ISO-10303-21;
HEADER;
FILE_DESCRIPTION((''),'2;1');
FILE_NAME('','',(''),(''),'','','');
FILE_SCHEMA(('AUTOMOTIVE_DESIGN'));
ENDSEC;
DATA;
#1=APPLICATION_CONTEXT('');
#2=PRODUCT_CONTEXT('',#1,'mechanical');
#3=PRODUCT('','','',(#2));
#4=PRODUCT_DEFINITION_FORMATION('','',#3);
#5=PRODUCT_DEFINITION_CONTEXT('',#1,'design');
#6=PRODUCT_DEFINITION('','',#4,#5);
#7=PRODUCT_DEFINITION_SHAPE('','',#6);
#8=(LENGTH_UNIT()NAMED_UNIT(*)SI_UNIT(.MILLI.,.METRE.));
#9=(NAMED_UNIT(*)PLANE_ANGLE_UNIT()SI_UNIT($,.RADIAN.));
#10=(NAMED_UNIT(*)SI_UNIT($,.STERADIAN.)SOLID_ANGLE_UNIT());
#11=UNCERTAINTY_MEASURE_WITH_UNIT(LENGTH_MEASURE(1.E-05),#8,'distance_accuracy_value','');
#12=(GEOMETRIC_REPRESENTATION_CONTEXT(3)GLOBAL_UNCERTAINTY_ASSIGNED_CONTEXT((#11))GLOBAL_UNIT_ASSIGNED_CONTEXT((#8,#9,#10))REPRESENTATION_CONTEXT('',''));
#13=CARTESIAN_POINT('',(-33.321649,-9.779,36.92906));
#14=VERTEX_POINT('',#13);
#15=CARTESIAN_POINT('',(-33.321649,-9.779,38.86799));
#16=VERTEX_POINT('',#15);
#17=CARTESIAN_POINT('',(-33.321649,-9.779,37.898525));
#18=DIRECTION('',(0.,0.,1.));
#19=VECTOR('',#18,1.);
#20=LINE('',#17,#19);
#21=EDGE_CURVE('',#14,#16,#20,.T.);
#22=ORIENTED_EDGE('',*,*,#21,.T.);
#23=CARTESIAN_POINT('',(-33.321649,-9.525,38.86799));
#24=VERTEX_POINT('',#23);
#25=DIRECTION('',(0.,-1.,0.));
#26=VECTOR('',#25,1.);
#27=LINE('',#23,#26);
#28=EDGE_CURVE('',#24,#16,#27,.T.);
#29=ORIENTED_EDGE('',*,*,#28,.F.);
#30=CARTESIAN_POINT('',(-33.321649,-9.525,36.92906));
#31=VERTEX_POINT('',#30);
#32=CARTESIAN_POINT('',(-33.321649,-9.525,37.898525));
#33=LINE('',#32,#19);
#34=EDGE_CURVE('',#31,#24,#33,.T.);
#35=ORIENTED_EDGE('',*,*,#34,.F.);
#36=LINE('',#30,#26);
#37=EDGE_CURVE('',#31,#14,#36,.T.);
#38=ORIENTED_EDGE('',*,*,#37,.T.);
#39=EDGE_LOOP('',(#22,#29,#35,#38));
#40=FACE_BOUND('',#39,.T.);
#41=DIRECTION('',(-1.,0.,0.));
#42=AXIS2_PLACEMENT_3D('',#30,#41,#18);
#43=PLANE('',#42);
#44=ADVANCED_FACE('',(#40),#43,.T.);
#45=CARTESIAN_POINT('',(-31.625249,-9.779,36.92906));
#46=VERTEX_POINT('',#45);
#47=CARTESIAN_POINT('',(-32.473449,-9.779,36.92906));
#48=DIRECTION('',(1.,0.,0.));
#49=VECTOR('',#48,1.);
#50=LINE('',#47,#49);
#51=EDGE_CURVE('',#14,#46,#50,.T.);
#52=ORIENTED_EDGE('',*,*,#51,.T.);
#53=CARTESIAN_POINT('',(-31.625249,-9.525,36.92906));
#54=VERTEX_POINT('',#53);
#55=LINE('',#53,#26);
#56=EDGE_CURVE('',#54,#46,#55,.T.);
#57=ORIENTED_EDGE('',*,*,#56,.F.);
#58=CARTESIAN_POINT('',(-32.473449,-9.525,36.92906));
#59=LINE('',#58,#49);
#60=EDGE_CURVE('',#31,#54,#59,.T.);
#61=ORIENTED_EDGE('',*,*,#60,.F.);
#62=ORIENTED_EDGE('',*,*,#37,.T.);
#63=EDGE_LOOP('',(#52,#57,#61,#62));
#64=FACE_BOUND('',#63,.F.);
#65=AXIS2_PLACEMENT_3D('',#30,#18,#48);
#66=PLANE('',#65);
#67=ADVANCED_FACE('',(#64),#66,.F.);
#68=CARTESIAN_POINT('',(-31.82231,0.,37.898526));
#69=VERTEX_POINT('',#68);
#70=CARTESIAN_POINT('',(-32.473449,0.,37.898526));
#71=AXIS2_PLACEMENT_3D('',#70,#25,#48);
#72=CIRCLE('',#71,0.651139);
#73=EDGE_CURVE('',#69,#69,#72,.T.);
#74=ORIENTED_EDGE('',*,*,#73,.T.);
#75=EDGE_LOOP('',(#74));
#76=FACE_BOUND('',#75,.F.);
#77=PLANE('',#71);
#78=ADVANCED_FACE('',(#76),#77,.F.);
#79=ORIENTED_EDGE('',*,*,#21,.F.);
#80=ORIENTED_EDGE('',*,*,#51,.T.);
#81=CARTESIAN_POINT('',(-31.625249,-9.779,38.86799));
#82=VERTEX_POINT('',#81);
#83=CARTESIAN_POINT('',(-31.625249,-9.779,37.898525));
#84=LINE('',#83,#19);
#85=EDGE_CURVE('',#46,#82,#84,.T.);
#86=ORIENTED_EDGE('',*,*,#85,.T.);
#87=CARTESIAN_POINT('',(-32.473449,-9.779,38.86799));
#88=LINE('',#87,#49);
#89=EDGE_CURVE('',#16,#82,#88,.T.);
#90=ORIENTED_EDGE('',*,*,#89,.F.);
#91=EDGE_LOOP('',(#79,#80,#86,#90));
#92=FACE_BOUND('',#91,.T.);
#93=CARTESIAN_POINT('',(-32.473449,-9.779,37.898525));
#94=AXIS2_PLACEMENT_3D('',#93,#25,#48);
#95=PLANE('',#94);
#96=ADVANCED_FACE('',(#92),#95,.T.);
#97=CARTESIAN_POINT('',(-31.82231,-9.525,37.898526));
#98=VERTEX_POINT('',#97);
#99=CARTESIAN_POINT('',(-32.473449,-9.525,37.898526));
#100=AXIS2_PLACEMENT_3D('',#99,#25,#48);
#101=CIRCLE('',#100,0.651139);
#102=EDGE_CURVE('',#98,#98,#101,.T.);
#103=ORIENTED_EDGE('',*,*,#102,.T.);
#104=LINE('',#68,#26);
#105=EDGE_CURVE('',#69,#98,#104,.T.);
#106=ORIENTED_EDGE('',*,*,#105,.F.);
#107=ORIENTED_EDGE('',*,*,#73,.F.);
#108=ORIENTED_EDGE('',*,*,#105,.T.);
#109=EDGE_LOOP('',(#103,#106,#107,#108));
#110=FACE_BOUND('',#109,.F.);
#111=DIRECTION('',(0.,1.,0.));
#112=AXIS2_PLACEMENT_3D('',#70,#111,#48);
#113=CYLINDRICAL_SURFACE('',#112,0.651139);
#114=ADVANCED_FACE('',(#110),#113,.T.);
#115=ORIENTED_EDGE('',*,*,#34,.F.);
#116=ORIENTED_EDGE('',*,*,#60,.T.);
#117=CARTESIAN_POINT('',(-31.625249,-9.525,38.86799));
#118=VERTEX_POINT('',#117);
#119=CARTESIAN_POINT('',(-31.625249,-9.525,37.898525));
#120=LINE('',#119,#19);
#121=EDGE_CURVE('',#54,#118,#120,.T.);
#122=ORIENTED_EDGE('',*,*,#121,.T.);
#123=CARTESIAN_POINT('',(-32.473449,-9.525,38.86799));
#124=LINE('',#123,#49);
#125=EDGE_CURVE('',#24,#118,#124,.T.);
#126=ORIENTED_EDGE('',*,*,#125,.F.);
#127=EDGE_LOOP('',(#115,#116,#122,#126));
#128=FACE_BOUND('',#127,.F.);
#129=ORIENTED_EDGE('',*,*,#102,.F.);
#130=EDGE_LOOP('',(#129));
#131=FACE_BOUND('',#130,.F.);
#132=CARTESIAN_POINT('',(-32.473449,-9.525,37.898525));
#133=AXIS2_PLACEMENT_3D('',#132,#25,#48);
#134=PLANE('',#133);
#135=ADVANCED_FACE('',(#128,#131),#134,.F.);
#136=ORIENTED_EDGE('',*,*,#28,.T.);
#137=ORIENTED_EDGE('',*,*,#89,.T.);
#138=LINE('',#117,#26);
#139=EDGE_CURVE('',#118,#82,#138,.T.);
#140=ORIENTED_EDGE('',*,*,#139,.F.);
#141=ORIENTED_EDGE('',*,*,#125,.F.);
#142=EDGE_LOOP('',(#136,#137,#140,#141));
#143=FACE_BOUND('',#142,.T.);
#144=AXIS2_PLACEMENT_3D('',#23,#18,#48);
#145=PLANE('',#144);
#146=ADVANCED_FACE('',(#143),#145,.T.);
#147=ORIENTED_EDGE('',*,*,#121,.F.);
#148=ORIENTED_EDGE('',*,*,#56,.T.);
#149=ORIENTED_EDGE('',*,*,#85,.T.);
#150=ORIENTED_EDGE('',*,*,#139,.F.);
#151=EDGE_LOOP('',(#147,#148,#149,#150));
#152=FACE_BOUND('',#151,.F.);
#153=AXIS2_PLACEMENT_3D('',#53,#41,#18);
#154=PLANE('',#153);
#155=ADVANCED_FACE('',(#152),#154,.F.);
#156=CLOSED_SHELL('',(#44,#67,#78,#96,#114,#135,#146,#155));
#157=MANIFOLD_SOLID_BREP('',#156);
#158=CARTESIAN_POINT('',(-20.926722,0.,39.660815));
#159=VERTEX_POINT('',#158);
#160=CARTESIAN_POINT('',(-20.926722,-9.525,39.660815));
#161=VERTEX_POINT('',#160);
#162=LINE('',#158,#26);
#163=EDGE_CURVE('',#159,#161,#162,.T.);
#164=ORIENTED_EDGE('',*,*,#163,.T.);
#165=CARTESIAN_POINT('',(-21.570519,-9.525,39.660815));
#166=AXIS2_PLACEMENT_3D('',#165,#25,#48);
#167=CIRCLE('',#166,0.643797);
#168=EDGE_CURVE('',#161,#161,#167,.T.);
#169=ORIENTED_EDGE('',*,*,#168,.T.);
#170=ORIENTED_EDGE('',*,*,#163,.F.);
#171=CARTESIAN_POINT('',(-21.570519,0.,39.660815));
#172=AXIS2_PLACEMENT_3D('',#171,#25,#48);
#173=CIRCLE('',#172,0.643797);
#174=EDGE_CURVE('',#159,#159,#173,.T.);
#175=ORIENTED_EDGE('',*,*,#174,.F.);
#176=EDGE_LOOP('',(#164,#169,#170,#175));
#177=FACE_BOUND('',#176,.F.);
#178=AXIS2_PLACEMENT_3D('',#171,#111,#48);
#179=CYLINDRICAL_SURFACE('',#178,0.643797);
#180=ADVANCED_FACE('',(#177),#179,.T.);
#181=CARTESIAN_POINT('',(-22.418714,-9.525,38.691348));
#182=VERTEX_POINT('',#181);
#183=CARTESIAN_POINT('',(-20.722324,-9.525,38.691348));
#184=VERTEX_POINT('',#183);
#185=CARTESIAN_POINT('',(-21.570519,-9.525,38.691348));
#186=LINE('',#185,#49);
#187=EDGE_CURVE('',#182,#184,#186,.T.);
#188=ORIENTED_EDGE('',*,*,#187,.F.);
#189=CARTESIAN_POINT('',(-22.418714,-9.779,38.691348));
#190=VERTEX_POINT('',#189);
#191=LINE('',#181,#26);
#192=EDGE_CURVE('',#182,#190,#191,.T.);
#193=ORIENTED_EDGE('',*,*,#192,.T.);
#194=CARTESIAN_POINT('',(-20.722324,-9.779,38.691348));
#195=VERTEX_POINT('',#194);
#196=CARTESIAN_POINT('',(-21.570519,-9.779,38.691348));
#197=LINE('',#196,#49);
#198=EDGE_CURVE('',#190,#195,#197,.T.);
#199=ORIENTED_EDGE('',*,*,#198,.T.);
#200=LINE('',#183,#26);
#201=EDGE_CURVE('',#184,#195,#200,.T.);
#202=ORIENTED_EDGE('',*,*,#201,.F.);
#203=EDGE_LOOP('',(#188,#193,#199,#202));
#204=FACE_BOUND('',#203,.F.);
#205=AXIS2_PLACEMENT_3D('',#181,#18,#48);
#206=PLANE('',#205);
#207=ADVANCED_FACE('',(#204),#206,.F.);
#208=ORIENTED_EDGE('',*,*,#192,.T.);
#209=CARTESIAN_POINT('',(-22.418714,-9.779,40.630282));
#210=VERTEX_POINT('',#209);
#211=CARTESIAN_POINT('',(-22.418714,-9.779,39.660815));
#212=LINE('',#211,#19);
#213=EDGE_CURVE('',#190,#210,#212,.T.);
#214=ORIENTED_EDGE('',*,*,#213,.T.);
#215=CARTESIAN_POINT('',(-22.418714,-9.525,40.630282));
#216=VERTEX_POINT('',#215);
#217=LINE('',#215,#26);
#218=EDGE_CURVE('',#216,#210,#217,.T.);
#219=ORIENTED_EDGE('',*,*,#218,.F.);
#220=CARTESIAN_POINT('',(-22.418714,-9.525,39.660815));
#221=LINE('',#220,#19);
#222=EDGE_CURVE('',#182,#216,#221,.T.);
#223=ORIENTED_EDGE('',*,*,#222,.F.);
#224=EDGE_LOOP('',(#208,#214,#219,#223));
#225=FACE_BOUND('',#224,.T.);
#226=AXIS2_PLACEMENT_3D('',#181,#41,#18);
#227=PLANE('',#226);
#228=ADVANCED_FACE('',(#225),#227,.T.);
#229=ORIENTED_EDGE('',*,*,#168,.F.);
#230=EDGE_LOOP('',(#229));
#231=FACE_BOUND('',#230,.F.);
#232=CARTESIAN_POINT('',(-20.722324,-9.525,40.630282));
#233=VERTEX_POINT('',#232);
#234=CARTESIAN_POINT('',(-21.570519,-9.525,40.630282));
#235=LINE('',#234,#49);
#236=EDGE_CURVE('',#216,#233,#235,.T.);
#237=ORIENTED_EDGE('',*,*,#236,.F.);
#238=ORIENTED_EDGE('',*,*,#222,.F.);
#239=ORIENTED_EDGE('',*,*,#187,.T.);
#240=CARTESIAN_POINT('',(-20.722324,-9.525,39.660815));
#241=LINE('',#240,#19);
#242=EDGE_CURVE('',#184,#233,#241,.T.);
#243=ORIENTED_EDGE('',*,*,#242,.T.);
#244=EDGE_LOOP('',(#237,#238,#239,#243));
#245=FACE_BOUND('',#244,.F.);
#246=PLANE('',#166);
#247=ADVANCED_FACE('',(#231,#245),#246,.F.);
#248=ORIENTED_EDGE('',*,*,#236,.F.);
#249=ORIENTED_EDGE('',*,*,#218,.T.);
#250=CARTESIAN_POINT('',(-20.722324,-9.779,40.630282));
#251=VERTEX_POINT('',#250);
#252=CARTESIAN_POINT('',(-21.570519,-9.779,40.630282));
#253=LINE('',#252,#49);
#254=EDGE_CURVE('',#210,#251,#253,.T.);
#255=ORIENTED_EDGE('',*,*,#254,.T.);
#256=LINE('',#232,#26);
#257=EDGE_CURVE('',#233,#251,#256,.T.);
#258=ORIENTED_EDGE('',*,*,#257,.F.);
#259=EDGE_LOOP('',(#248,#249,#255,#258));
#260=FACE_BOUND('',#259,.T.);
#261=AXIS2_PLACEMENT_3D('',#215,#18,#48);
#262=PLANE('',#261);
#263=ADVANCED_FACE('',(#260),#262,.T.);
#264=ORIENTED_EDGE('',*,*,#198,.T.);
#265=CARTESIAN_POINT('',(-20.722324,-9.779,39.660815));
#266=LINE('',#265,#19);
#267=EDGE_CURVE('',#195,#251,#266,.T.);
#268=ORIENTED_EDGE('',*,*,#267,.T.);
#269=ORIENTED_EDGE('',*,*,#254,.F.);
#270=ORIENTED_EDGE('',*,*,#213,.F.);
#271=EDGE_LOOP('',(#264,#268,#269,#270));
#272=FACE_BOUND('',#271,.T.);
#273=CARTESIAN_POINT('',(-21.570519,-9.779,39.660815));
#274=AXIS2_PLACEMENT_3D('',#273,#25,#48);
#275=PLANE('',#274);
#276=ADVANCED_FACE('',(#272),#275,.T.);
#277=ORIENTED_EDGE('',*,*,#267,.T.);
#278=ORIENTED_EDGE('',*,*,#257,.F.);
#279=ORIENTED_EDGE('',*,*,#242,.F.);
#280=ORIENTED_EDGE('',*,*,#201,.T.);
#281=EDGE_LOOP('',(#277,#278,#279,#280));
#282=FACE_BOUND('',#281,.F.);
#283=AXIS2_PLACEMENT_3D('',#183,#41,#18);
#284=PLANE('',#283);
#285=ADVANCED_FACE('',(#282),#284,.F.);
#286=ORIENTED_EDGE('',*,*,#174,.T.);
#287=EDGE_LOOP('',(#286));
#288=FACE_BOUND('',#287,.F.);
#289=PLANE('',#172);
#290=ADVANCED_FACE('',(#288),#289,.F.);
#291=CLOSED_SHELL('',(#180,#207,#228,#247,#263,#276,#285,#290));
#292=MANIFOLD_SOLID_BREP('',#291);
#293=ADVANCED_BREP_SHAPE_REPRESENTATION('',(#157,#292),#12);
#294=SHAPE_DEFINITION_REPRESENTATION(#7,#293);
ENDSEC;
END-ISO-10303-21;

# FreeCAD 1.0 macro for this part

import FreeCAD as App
import Part
import Sketcher
from FreeCAD import Vector
Q = App.Units.Quantity


def add_polygon(sketch, points):
    """Adds a closed chain of lines whose ends are joined by coincident constraints."""
    first, n = sketch.GeometryCount, len(points)
    for a, b in zip(points, points[1:] + points[:1]):
        sketch.addGeometry(Part.LineSegment(App.Vector(*a, 0), App.Vector(*b, 0)), False)
    for i in range(n):
        sketch.addConstraint(Sketcher.Constraint("Coincident", first + i, 2, first + (i + 1) % n, 1))

doc = App.newDocument("Part")
body = doc.addObject("PartDesign::Body", "Body")
body.AllowCompound = True

# Sketch on XZ plane
sketch1 = doc.addObject("Sketcher::SketchObject", "Sketch")
body.addObject(sketch1)
sketch1.AttachmentSupport = (doc.XZ_Plane, [""])
sketch1.MapMode = "FlatFace"
sketch1.addGeometry([
    Part.Circle(Vector(-21.6, 39.7, 0), Vector(0, 0, 1), 0.6),
    Part.Circle(Vector(-32.5, 37.9, 0), Vector(0, 0, 1), 0.7),
], False)
sketch1.addConstraint([
    Sketcher.Constraint("Diameter", 0, Q("1.287594 mm")),
    Sketcher.Constraint("Diameter", 1, Q("1.302278 mm")),
    Sketcher.Constraint("DistanceX", 0, 3, -1, 1, Q("21.570519 mm")),
    Sketcher.Constraint("DistanceX", 1, 3, -1, 1, Q("32.473449 mm")),
    Sketcher.Constraint("DistanceY", 1, 3, 0, 3, Q("1.762289 mm")),
    Sketcher.Constraint("DistanceY", -1, 1, 0, 3, Q("39.660815 mm")),
])
pad1 = doc.addObject("PartDesign::Pad", "Pad")
body.addObject(pad1)
pad1.Profile = sketch1
pad1.Length = Q("0.375 in")

# Sketch on XZ plane
sketch2 = doc.addObject("Sketcher::SketchObject", "Sketch001")
body.addObject(sketch2)
sketch2.AttachmentSupport = (doc.XZ_Plane, [""])
sketch2.MapMode = "FlatFace"
sketch2.AttachmentOffset = App.Placement(Vector(0, 0, 0.375 * 25.4), App.Rotation())
add_polygon(sketch2, [(-33.3, 38.9), (-33.3, 36.9), (-31.6, 36.9), (-31.6, 38.9)])  # lines 0-3
add_polygon(sketch2, [(-22.4, 40.6), (-22.4, 38.7), (-20.7, 38.7), (-20.7, 40.6)])  # lines 4-7
sketch2.addConstraint([
    Sketcher.Constraint("Vertical", 0),
    Sketcher.Constraint("Horizontal", 1),
    Sketcher.Constraint("Vertical", 2),
    Sketcher.Constraint("Horizontal", 3),
    Sketcher.Constraint("Vertical", 4),
    Sketcher.Constraint("Horizontal", 5),
    Sketcher.Constraint("Vertical", 6),
    Sketcher.Constraint("Horizontal", 7),
    Sketcher.Constraint("DistanceX", 1, 1, 1, 2, Q("1.696401 mm")),
    Sketcher.Constraint("DistanceY", -1, 1, 0, 2, Q("1.4539 in")),
    Sketcher.Constraint("DistanceX", 5, 1, 5, 2, Q("1.69639 mm")),
    Sketcher.Constraint("DistanceY", 0, 2, 0, 1, Q("1.938931 mm")),
    Sketcher.Constraint("DistanceY", 4, 2, 4, 1, Q("1.938934 mm")),
    Sketcher.Constraint("DistanceX", 0, 2, -1, 1, Q("33.321649 mm")),
    Sketcher.Constraint("DistanceY", 1, 2, 4, 2, Q("1.762288 mm")),
    Sketcher.Constraint("DistanceX", 4, 2, -1, 1, Q("22.418714 mm")),
])
pad2 = doc.addObject("PartDesign::Pad", "Pad001")
body.addObject(pad2)
pad2.Profile = sketch2
pad2.Length = Q("0.01 in")

doc.recompute()
